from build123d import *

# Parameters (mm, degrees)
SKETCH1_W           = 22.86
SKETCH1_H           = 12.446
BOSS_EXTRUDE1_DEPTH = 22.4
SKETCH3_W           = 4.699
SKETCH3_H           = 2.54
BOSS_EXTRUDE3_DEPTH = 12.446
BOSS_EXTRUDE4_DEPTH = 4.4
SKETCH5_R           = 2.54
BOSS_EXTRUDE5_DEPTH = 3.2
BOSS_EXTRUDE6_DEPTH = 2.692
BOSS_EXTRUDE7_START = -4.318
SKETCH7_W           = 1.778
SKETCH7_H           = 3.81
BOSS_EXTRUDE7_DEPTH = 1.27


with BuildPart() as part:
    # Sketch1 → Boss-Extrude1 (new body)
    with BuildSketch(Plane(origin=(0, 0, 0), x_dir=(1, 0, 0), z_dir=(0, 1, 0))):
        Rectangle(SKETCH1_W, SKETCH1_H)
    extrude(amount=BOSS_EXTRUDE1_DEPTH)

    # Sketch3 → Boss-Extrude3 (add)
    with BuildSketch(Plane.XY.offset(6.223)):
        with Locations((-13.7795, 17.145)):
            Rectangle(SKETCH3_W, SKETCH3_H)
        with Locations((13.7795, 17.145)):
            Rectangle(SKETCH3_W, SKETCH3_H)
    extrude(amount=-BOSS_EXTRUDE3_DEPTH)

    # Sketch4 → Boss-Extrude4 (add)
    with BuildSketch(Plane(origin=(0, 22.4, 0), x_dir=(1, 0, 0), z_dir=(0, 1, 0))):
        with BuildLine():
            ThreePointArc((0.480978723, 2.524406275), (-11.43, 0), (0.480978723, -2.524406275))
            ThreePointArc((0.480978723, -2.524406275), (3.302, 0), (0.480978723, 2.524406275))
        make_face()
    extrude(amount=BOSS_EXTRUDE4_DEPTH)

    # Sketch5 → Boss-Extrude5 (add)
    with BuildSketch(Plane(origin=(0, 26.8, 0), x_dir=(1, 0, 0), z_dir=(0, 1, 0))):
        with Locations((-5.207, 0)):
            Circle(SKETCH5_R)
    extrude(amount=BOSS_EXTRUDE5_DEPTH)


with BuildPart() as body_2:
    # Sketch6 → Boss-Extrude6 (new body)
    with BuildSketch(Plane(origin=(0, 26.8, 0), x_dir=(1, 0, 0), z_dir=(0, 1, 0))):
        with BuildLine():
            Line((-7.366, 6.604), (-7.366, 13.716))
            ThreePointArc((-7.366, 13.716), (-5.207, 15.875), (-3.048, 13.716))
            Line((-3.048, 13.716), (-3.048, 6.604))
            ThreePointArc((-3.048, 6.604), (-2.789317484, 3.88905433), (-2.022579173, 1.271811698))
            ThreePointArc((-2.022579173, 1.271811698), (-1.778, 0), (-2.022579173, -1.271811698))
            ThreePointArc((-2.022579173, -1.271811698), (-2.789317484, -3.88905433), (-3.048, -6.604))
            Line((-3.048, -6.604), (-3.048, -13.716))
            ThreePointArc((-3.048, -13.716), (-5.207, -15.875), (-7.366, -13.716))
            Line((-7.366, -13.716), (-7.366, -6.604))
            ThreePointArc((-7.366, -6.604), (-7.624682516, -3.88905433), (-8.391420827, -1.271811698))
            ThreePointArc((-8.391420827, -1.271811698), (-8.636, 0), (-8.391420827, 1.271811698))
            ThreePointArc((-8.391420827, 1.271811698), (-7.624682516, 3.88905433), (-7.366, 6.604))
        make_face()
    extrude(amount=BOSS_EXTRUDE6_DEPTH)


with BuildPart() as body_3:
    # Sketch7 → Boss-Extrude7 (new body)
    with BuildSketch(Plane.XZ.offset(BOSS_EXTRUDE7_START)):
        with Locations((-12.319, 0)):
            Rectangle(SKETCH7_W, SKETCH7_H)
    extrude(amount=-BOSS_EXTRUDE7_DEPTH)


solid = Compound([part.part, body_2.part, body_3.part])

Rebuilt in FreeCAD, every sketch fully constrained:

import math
import FreeCAD as App
import Part
import Sketcher

V = App.Vector
Q = App.Units.Quantity


def add_polygon(sketch, points):
    """Adds a closed chain of lines whose ends are joined by coincident constraints."""
    first, n = sketch.GeometryCount, len(points)
    for a, b in zip(points, points[1:] + points[:1]):
        sketch.addGeometry(Part.LineSegment(App.Vector(*a, 0), App.Vector(*b, 0)), False)
    for i in range(n):
        sketch.addConstraint(Sketcher.Constraint("Coincident", first + i, 2, first + (i + 1) % n, 1))

doc = App.newDocument("Part")
params = doc.addObject("Spreadsheet::Sheet", "Params")
for row, (alias, value) in enumerate([
    ("sketch1_width", "0.9 in"),
    ("sketch1_height", "0.49 in"),
    ("pad1_length", "22.4 mm"),
    ("sketch2_height", "0.1 in"),
    ("sketch2_width", "0.185 in"),
    ("pad2_length", "0.49 in"),
    ("sketch3_radius", "0.1 in"),
    ("sketch3_radius2", "0.245 in"),
    ("pad3_length", "4.4 mm"),
    ("sketch4_diameter", "0.2 in"),
    ("pad4_length", "3.2 mm"),
    ("sketch5_radius", "0.566 in"),
    ("sketch5_radius2", "0.135 in"),
    ("sketch5_radius3", "0.085 in"),
    ("sketch5_height", "0.28 in"),
    ("pad5_length", "2.692 mm"),
    ("sketch6_width", "0.07 in"),
    ("sketch6_height", "0.15 in"),
    ("pad6_length", "0.05 in"),
], start=1):
    params.set(f"A{row}", alias)
    params.set(f"B{row}", "=" + value)
    params.setAlias(f"B{row}", alias)

body = doc.addObject("PartDesign::Body", "Body")

# Sketch on XZ plane
sketch1 = body.newObject("Sketcher::SketchObject", "Sketch")
sketch1.AttachmentSupport = (doc.getObject("XZ_Plane"), [""])
sketch1.MapMode = "FlatFace"
add_polygon(sketch1, [(-11.43, -6.223), (-11.43, 6.223), (11.43, 6.223), (11.43, -6.223)])  # lines 0-3
sketch1.addConstraint([
    Sketcher.Constraint("Vertical", 0),
    Sketcher.Constraint("Horizontal", 1),
    Sketcher.Constraint("Vertical", 2),
    Sketcher.Constraint("Horizontal", 3),
    Sketcher.Constraint("Symmetric", 0, 2, 2, 2, -1, 1),
    Sketcher.Constraint("DistanceX", 1, 1, 1, 2, Q("0.9 in")),
    Sketcher.Constraint("DistanceY", 0, 1, 0, 2, Q("0.49 in")),
])
sketch1.setExpression("Constraints[9]", "Params.sketch1_width")
sketch1.setExpression("Constraints[10]", "Params.sketch1_height")
pad1 = body.newObject("PartDesign::Pad", "Pad")
pad1.Profile = sketch1
pad1.setExpression("Length", "Params.pad1_length")
pad1.Reversed = True

# Sketch on XY plane
sketch2 = body.newObject("Sketcher::SketchObject", "Sketch001")
sketch2.AttachmentSupport = (doc.getObject("XY_Plane"), [""])
sketch2.MapMode = "FlatFace"
sketch2.AttachmentOffset = App.Placement(V(0, 0, 0.245 * 25.4), App.Rotation())
add_polygon(sketch2, [(-16.129, 18.415), (-16.129, 15.875), (-11.43, 15.875), (-11.43, 18.415)])  # lines 0-3
add_polygon(sketch2, [(11.43, 18.415), (11.43, 15.875), (16.129, 15.875), (16.129, 18.415)])  # lines 4-7
sketch2.addConstraint([
    Sketcher.Constraint("Vertical", 0),
    Sketcher.Constraint("Horizontal", 1),
    Sketcher.Constraint("Vertical", 2),
    Sketcher.Constraint("Horizontal", 3),
    Sketcher.Constraint("Vertical", 4),
    Sketcher.Constraint("Horizontal", 5),
    Sketcher.Constraint("Vertical", 6),
    Sketcher.Constraint("Horizontal", 7),
    Sketcher.Constraint("Symmetric", 1, 2, 4, 2, -2),
    Sketcher.Constraint("Symmetric", 3, 2, 6, 2, -2),
    Sketcher.Constraint("DistanceY", 0, 2, 0, 1, Q("0.1 in")),
    Sketcher.Constraint("DistanceX", 1, 2, 4, 2, Q("0.9 in")),
    Sketcher.Constraint("DistanceX", 1, 1, 1, 2, Q("0.185 in")),
    Sketcher.Constraint("DistanceY", -1, 1, 0, 2, Q("0.625 in")),
])
sketch2.setExpression("Constraints[18]", "Params.sketch2_height")
sketch2.setExpression("Constraints[20]", "Params.sketch2_width")
pad2 = body.newObject("PartDesign::Pad", "Pad001")
pad2.Profile = sketch2
pad2.setExpression("Length", "Params.pad2_length")
pad2.Reversed = True

# Sketch on XZ plane
sketch3 = body.newObject("Sketcher::SketchObject", "Sketch002")
sketch3.AttachmentSupport = (doc.getObject("XZ_Plane"), [""])
sketch3.MapMode = "FlatFace"
sketch3.AttachmentOffset = App.Placement(V(0, 0, -22.4), App.Rotation())
sketch3.addGeometry([
    Part.ArcOfCircle(Part.Circle(V(-5.207, 0, 0), V(0, 0, 1), 6.223), math.radians(23.932333), math.radians(336.067667)),
    Part.ArcOfCircle(Part.Circle(V(0.762, 0, 0), V(0, 0, 1), 2.54), math.radians(-96.352112), math.radians(96.352112)),
], False)
sketch3.addConstraint([
    Sketcher.Constraint("Coincident", 0, 1, 1, 2),
    Sketcher.Constraint("Coincident", 1, 1, 0, 2),
    Sketcher.Constraint("Symmetric", 0, 1, 1, 1, -1),
    Sketcher.Constraint("Radius", 1, Q("0.1 in")),
    Sketcher.Constraint("Radius", 0, Q("0.245 in")),
    Sketcher.Constraint("DistanceX", -1, 1, 1, 3, Q("0.03 in")),
    Sketcher.Constraint("DistanceX", 0, 3, -1, 1, Q("0.205 in")),
])
sketch3.setExpression("Constraints[3]", "Params.sketch3_radius")
sketch3.setExpression("Constraints[4]", "Params.sketch3_radius2")
pad3 = body.newObject("PartDesign::Pad", "Pad002")
pad3.Profile = sketch3
pad3.setExpression("Length", "Params.pad3_length")
pad3.Reversed = True

# Sketch on XZ plane
sketch4 = body.newObject("Sketcher::SketchObject", "Sketch003")
sketch4.AttachmentSupport = (doc.getObject("XZ_Plane"), [""])
sketch4.MapMode = "FlatFace"
sketch4.AttachmentOffset = App.Placement(V(0, 0, -26.8), App.Rotation())
sketch4.addGeometry(Part.Circle(V(-5.207, 0, 0), V(0, 0, 1), 2.54), False)
sketch4.addConstraint([
    Sketcher.Constraint("PointOnObject", 0, 3, -1),
    Sketcher.Constraint("Diameter", 0, Q("0.2 in")),
    Sketcher.Constraint("DistanceX", 0, 3, -1, 1, Q("0.205 in")),
])
sketch4.setExpression("Constraints[1]", "Params.sketch4_diameter")
pad4 = body.newObject("PartDesign::Pad", "Pad003")
pad4.Profile = sketch4
pad4.setExpression("Length", "Params.pad4_length")
pad4.Reversed = True
body2 = doc.addObject("PartDesign::Body", "Body001")

# Sketch on XZ plane
sketch5 = body2.newObject("Sketcher::SketchObject", "Sketch004")
sketch5.AttachmentSupport = (doc.getObject("XZ_Plane001"), [""])
sketch5.MapMode = "FlatFace"
sketch5.AttachmentOffset = App.Placement(V(0, 0, -26.8), App.Rotation())
sketch5.addGeometry([
    Part.LineSegment(V(-7.366, -13.716, 0), V(-7.366, -6.604, 0)),  # 0
    Part.ArcOfCircle(Part.Circle(V(-21.7424, -6.604, 0), V(0, 0, 1), 14.3764), math.radians(0), math.radians(21.771054)),  # 1
    Part.ArcOfCircle(Part.Circle(V(-5.207, 0, 0), V(0, 0, 1), 3.429), math.radians(158.228946), math.radians(201.771054)),  # 2
    Part.ArcOfCircle(Part.Circle(V(-21.7424, 6.604, 0), V(0, 0, 1), 14.3764), math.radians(-21.771054), math.radians(0)),  # 3
    Part.LineSegment(V(-7.366, 6.604, 0), V(-7.366, 13.716, 0)),  # 4
    Part.ArcOfCircle(Part.Circle(V(-5.207, 13.716, 0), V(0, 0, 1), 2.159), math.radians(0), math.radians(180)),  # 5
    Part.LineSegment(V(-3.048, 13.716, 0), V(-3.048, 6.604, 0)),  # 6
    Part.ArcOfCircle(Part.Circle(V(11.3284, 6.604, 0), V(0, 0, 1), 14.3764), math.radians(-180), math.radians(-158.228946)),  # 7
    Part.ArcOfCircle(Part.Circle(V(-5.207, 0, 0), V(0, 0, 1), 3.429), math.radians(-21.771054), math.radians(21.771054)),  # 8
    Part.ArcOfCircle(Part.Circle(V(11.3284, -6.604, 0), V(0, 0, 1), 14.3764), math.radians(158.228946), math.radians(180)),  # 9
    Part.LineSegment(V(-3.048, -6.604, 0), V(-3.048, -13.716, 0)),  # 10
    Part.ArcOfCircle(Part.Circle(V(-5.207, -13.716, 0), V(0, 0, 1), 2.159), math.radians(180), math.radians(360)),  # 11
], False)
sketch5.addConstraint([
    Sketcher.Constraint("Tangent", 0, 2, 1, 1),
    Sketcher.Constraint("Tangent", 1, 2, 2, 2),
    Sketcher.Constraint("Tangent", 2, 1, 3, 1),
    Sketcher.Constraint("Tangent", 3, 2, 4, 1),
    Sketcher.Constraint("Tangent", 4, 2, 5, 2),
    Sketcher.Constraint("Tangent", 5, 1, 6, 1),
    Sketcher.Constraint("Tangent", 6, 2, 7, 1),
    Sketcher.Constraint("Tangent", 7, 2, 8, 2),
    Sketcher.Constraint("Tangent", 8, 1, 9, 1),
    Sketcher.Constraint("Tangent", 9, 2, 10, 1),
    Sketcher.Constraint("Tangent", 10, 2, 11, 2),
    Sketcher.Constraint("Tangent", 11, 1, 0, 1),
    Sketcher.Constraint("Vertical", 0),
    Sketcher.Constraint("Vertical", 4),
    Sketcher.Constraint("Vertical", 6),
    Sketcher.Constraint("Vertical", 10),
    Sketcher.Constraint("Coincident", 8, 3, 2, 3),
    Sketcher.Constraint("Equal", 1, 3),
    Sketcher.Constraint("Equal", 3, 7),
    Sketcher.Constraint("Equal", 2, 8),
    Sketcher.Constraint("Equal", 7, 9),
    Sketcher.Constraint("Equal", 5, 11),
    Sketcher.Constraint("Symmetric", 1, 3, 3, 3, -1),
    Sketcher.Constraint("Horizontal", 3, 3, 7, 3),
    Sketcher.Constraint("Equal", 0, 4),
    Sketcher.Constraint("Radius", 1, Q("0.566 in")),
    Sketcher.Constraint("Radius", 2, Q("0.135 in")),
    Sketcher.Constraint("Radius", 5, Q("0.085 in")),
    Sketcher.Constraint("DistanceY", 0, 1, 0, 2, Q("0.28 in")),
    Sketcher.Constraint("DistanceX", 0, 2, -1, 1, Q("0.29 in")),
])
sketch5.setExpression("Constraints[25]", "Params.sketch5_radius")
sketch5.setExpression("Constraints[26]", "Params.sketch5_radius2")
sketch5.setExpression("Constraints[27]", "Params.sketch5_radius3")
sketch5.setExpression("Constraints[28]", "Params.sketch5_height")
pad5 = body2.newObject("PartDesign::Pad", "Pad004")
pad5.Profile = sketch5
pad5.setExpression("Length", "Params.pad5_length")
pad5.Reversed = True
body3 = doc.addObject("PartDesign::Body", "Body002")

# Sketch on XZ plane
sketch6 = body3.newObject("Sketcher::SketchObject", "Sketch005")
sketch6.AttachmentSupport = (doc.getObject("XZ_Plane002"), [""])
sketch6.MapMode = "FlatFace"
sketch6.AttachmentOffset = App.Placement(V(0, 0, -0.17 * 25.4), App.Rotation())
add_polygon(sketch6, [(-13.208, 1.905), (-13.208, -1.905), (-11.43, -1.905), (-11.43, 1.905)])  # lines 0-3
sketch6.addConstraint([
    Sketcher.Constraint("Vertical", 0),
    Sketcher.Constraint("Horizontal", 1),
    Sketcher.Constraint("Vertical", 2),
    Sketcher.Constraint("Horizontal", 3),
    Sketcher.Constraint("DistanceX", 1, 1, 1, 2, Q("0.07 in")),
    Sketcher.Constraint("DistanceY", 0, 2, 0, 1, Q("0.15 in")),
    Sketcher.Constraint("DistanceX", 0, 2, -1, 1, Q("0.52 in")),
    Sketcher.Constraint("DistanceY", 0, 2, -1, 1, Q("0.075 in")),
])
sketch6.setExpression("Constraints[8]", "Params.sketch6_width")
sketch6.setExpression("Constraints[9]", "Params.sketch6_height")
pad6 = body3.newObject("PartDesign::Pad", "Pad005")
pad6.Profile = sketch6
pad6.setExpression("Length", "Params.pad6_length")
pad6.Reversed = True

doc.recompute()
